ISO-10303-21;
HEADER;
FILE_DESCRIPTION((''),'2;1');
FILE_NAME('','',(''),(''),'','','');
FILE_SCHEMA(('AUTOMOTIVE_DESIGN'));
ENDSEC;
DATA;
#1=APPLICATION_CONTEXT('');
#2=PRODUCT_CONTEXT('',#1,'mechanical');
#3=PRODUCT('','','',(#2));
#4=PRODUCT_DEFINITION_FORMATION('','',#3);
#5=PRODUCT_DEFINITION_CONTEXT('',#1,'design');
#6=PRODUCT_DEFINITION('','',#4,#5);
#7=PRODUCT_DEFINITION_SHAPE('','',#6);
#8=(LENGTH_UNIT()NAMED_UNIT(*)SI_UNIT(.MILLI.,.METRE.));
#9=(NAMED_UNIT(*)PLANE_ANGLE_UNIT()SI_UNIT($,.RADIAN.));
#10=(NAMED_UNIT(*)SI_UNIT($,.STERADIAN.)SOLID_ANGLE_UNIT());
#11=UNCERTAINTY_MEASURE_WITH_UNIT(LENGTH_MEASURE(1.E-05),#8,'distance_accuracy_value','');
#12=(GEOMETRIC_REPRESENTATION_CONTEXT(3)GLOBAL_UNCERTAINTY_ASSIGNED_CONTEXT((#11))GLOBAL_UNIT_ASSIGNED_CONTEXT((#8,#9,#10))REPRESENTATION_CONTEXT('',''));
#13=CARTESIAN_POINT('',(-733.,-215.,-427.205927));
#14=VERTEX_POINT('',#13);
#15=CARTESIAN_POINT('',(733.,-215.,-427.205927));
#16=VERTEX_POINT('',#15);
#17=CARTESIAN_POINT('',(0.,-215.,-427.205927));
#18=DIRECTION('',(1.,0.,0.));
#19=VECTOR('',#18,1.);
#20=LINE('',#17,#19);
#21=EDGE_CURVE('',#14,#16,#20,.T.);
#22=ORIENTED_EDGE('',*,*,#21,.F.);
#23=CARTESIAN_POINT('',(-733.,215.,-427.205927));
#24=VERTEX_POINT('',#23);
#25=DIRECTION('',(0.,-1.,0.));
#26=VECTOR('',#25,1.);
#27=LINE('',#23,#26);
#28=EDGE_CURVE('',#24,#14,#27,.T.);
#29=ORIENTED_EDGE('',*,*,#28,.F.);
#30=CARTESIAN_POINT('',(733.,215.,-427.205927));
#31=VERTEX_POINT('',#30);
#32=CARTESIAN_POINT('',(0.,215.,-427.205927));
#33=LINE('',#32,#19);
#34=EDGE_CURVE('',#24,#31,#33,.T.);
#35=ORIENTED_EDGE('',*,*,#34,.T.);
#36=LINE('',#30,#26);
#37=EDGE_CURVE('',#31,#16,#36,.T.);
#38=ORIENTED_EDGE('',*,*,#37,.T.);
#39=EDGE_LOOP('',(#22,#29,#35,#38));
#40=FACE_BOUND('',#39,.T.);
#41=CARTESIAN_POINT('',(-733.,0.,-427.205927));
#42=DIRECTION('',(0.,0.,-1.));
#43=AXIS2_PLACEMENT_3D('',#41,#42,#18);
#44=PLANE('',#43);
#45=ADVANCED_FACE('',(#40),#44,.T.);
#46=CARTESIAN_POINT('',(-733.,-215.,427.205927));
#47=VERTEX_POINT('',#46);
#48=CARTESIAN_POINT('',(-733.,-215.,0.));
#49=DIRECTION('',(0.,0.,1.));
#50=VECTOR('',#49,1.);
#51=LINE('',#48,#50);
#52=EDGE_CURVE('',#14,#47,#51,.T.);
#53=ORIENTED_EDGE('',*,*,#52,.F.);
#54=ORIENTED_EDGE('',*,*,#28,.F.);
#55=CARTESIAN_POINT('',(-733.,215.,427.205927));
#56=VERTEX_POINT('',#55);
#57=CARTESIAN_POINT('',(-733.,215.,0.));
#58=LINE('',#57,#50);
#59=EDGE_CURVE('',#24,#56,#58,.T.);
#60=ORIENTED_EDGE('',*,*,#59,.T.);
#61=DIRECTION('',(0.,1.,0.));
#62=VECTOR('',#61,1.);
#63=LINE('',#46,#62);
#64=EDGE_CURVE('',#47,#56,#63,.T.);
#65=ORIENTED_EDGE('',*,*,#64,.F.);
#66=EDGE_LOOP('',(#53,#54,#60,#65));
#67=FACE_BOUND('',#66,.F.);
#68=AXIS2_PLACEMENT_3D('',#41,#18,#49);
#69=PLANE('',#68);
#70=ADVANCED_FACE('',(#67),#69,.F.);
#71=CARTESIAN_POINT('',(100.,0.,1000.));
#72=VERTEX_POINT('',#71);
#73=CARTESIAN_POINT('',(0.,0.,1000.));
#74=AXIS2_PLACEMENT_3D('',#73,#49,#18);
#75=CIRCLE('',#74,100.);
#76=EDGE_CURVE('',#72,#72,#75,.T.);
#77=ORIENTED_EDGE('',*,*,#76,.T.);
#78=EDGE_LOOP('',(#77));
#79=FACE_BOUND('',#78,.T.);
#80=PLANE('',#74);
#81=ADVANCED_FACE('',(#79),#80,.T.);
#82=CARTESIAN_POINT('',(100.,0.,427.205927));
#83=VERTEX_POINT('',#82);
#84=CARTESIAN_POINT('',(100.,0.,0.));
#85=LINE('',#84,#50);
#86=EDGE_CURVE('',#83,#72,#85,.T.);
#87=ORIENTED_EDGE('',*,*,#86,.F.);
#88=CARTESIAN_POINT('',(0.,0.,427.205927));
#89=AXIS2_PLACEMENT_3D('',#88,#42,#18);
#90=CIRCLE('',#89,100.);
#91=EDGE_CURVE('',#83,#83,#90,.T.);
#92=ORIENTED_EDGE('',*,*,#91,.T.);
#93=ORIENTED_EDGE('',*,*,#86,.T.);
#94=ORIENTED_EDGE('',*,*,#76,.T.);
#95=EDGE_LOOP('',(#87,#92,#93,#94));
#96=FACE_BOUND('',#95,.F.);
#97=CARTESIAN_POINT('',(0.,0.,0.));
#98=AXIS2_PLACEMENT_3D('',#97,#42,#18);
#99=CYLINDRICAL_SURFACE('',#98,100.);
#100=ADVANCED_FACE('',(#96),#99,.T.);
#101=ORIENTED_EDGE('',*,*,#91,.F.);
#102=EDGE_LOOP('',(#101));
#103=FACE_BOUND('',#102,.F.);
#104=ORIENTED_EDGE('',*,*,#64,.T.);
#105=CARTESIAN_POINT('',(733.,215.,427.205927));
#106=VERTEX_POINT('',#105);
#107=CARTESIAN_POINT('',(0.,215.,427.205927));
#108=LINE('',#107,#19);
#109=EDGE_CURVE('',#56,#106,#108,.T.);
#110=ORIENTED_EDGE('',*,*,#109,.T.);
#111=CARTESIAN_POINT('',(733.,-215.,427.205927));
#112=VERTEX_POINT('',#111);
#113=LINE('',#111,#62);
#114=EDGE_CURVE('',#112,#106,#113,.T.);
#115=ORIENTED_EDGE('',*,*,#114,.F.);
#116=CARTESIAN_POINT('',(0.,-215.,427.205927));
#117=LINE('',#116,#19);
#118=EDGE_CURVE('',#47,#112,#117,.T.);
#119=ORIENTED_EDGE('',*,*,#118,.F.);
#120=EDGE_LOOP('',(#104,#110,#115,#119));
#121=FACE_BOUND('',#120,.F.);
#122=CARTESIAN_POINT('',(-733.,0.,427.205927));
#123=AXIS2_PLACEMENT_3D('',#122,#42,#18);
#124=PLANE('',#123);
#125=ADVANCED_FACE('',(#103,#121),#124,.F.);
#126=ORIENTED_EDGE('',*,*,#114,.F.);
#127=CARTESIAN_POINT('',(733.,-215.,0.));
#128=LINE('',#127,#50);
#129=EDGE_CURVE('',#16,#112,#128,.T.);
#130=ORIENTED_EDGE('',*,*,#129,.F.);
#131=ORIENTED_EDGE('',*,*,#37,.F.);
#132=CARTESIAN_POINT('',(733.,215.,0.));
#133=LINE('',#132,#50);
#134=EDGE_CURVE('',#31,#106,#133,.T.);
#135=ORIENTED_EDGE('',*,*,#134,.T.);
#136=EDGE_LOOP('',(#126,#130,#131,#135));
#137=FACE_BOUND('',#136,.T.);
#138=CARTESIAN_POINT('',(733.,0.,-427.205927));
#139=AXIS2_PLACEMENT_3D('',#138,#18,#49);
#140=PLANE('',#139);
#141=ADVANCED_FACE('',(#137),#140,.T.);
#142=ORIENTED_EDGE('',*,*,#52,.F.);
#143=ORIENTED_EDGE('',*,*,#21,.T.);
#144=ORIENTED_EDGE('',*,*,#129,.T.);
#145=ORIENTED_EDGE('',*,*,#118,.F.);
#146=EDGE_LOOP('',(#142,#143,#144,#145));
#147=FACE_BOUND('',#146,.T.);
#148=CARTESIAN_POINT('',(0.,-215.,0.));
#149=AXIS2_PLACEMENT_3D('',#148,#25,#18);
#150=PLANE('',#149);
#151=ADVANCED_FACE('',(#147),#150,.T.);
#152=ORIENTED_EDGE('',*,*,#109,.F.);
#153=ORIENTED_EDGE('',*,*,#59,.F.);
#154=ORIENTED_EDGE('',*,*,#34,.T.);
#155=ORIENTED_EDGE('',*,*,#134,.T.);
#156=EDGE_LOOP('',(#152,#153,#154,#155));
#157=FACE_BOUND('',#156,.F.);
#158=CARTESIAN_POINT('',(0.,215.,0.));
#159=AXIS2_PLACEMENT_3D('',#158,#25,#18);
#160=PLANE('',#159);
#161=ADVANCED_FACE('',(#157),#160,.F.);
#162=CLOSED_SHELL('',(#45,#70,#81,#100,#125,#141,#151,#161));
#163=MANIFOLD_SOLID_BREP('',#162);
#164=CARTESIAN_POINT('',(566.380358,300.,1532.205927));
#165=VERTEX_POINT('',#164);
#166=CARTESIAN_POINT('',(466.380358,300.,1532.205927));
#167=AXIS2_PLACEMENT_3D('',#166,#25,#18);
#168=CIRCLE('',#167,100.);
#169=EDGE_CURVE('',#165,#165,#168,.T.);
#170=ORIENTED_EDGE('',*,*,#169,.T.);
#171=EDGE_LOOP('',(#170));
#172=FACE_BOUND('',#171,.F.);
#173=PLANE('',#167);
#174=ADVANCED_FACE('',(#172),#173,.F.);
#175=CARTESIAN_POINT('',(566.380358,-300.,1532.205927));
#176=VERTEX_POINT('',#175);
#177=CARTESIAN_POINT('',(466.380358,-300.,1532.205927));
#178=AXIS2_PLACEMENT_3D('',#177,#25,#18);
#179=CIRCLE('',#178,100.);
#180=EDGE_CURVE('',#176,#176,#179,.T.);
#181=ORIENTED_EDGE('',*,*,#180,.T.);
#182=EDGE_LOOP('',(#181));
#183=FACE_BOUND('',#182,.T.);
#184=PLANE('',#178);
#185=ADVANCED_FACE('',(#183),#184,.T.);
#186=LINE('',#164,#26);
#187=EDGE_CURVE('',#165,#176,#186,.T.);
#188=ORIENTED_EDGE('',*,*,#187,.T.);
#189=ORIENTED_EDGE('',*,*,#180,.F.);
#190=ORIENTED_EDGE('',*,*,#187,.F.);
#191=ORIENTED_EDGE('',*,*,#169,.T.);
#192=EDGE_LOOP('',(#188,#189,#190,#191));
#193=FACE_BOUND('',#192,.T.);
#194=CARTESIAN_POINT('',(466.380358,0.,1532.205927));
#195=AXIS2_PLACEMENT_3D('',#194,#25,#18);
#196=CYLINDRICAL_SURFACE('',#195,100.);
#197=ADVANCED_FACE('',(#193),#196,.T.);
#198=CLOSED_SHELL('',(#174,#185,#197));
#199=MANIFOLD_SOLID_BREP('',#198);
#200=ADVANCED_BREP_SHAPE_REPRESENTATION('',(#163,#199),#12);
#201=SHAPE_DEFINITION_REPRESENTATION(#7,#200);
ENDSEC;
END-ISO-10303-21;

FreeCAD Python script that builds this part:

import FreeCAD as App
import Part
import Sketcher

V = App.Vector


def add_polygon(sketch, points):
    """Adds a closed chain of lines whose ends are joined by coincident constraints."""
    first, n = sketch.GeometryCount, len(points)
    for a, b in zip(points, points[1:] + points[:1]):
        sketch.addGeometry(Part.LineSegment(App.Vector(*a, 0), App.Vector(*b, 0)), False)
    for i in range(n):
        sketch.addConstraint(Sketcher.Constraint("Coincident", first + i, 2, first + (i + 1) % n, 1))

doc = App.newDocument("Part")
body = doc.addObject("PartDesign::Body", "Body")

# Sketch on XZ plane
sketch1 = doc.addObject("Sketcher::SketchObject", "Sketch")
body.addObject(sketch1)
sketch1.AttachmentSupport = (doc.XZ_Plane, [""])
sketch1.MapMode = "FlatFace"
add_polygon(sketch1, [(-733, 427.205927), (-733, -427.205927), (733, -427.205927), (733, 427.205927)])  # lines 0-3
sketch1.addConstraint([
    Sketcher.Constraint("Vertical", 0),
    Sketcher.Constraint("Horizontal", 1),
    Sketcher.Constraint("Vertical", 2),
    Sketcher.Constraint("Horizontal", 3),
    Sketcher.Constraint("Symmetric", 0, 2, 2, 2, -1, 1),
    Sketcher.Constraint("DistanceX", 1, 1, 1, 2, 1466.0),
    Sketcher.Constraint("DistanceY", 0, 2, 0, 1, 854.411854),
])
pad1 = doc.addObject("PartDesign::Pad", "Pad")
body.addObject(pad1)
pad1.Profile = sketch1
pad1.Length = 430
pad1.Midplane = True

# Sketch on XY plane
sketch2 = doc.addObject("Sketcher::SketchObject", "Sketch001")
body.addObject(sketch2)
sketch2.AttachmentSupport = (doc.XY_Plane, [""])
sketch2.MapMode = "FlatFace"
sketch2.addGeometry(Part.Circle(V(0, 0, 0), V(0, 0, 1), 100), False)
sketch2.addConstraint([
    Sketcher.Constraint("Coincident", 0, 3, -1, 1),
    Sketcher.Constraint("Diameter", 0, 200.0),
])
pad2 = doc.addObject("PartDesign::Pad", "Pad001")
body.addObject(pad2)
pad2.Profile = sketch2
pad2.Length = 1000
body2 = doc.addObject("PartDesign::Body", "Body001")

# Sketch on XZ plane
sketch3 = doc.addObject("Sketcher::SketchObject", "Sketch002")
body2.addObject(sketch3)
sketch3.AttachmentSupport = (doc.getObject("XZ_Plane001"), [""])
sketch3.MapMode = "FlatFace"
sketch3.addGeometry(Part.Circle(V(466.380358, 1532.205927, 0), V(0, 0, 1), 100), False)
sketch3.addConstraint([
    Sketcher.Constraint("Diameter", 0, 200.0),
    Sketcher.Constraint("DistanceX", -1, 1, 0, 3, 466.380358),
    Sketcher.Constraint("DistanceY", -1, 1, 0, 3, 1532.205927),
])
pad3 = doc.addObject("PartDesign::Pad", "Pad002")
body2.addObject(pad3)
pad3.Profile = sketch3
pad3.Length = 600
pad3.Midplane = True

doc.recompute()
